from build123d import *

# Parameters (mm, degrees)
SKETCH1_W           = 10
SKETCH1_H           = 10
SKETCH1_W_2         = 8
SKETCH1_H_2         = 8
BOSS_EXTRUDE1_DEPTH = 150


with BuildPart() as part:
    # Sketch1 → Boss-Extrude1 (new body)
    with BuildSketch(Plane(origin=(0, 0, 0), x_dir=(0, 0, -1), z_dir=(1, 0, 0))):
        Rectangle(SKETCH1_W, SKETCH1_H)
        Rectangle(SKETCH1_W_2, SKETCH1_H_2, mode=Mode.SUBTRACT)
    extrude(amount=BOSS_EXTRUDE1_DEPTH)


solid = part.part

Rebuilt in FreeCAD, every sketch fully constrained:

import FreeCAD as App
import Part
import Sketcher


def add_polygon(sketch, points):
    """Adds a closed chain of lines whose ends are joined by coincident constraints."""
    first, n = sketch.GeometryCount, len(points)
    for a, b in zip(points, points[1:] + points[:1]):
        sketch.addGeometry(Part.LineSegment(App.Vector(*a, 0), App.Vector(*b, 0)), False)
    for i in range(n):
        sketch.addConstraint(Sketcher.Constraint("Coincident", first + i, 2, first + (i + 1) % n, 1))

doc = App.newDocument("Part")
body = doc.addObject("PartDesign::Body", "Body")

sketch1 = body.newObject("Sketcher::SketchObject", "Sketch")
sketch1.AttachmentSupport = (doc.getObject("YZ_Plane"), [""])
sketch1.MapMode = "FlatFace"
add_polygon(sketch1, [(5, 5), (-5, 5), (-5, -5), (5, -5)])
add_polygon(sketch1, [(-4, -4), (-4, 4), (4, 4), (4, -4)])
sketch1.addConstraint([
    Sketcher.Constraint("Horizontal", 0),
    Sketcher.Constraint("Vertical", 1),
    Sketcher.Constraint("Horizontal", 2),
    Sketcher.Constraint("Vertical", 3),
    Sketcher.Constraint("Vertical", 4),
    Sketcher.Constraint("Horizontal", 5),
    Sketcher.Constraint("Vertical", 6),
    Sketcher.Constraint("Horizontal", 7),
    Sketcher.Constraint("Symmetric", 0, 2, 2, 2, -1, 1),
    Sketcher.Constraint("Symmetric", 4, 2, 6, 2, -1, 1),
    Sketcher.Constraint("Equal", 2, 1),
    Sketcher.Constraint("Equal", 7, 4),
    Sketcher.Constraint("DistanceX", 0, 2, 0, 1, 10.0),
    Sketcher.Constraint("DistanceX", 5, 1, 5, 2, 8.0),
])
pad1 = body.newObject("PartDesign::Pad", "Pad")
pad1.Profile = sketch1
pad1.Length = 150

doc.recompute()
